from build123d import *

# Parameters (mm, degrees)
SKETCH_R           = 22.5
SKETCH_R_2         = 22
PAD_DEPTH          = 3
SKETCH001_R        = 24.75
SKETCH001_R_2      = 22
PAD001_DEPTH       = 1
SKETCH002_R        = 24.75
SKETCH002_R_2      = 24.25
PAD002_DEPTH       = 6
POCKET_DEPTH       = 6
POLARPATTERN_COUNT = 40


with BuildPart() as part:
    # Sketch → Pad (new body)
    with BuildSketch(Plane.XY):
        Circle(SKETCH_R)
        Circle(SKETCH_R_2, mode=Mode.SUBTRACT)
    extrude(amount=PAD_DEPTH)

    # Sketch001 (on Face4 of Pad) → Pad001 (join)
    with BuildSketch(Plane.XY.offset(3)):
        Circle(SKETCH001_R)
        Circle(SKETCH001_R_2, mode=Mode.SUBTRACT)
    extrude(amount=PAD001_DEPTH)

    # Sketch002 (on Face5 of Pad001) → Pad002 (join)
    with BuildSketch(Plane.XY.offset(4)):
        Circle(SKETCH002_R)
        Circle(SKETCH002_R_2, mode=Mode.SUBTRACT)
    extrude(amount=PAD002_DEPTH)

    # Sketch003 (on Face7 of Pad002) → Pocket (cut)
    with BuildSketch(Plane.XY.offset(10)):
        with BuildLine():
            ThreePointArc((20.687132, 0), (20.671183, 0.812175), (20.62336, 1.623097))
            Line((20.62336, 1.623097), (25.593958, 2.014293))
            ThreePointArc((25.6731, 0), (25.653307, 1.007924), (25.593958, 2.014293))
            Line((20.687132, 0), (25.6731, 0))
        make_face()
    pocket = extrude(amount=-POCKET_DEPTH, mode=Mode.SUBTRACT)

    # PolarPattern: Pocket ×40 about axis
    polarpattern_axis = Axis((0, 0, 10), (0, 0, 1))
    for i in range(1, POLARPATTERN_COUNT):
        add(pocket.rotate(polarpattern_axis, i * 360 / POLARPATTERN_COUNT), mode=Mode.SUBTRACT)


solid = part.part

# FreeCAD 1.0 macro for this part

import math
import FreeCAD as App
import Part
import Sketcher

V = App.Vector
Q = App.Units.Quantity

doc = App.newDocument("Part")
params = doc.addObject("Spreadsheet::Sheet", "Params")
for row, (alias, value) in enumerate([
    ("sketch1_diameter", "45 mm"),
    ("sketch1_diameter2", "44 mm"),
    ("pad1_length", "3 mm"),
    ("sketch2_diameter", "44 mm"),
    ("sketch2_diameter2", "49.5 mm"),
    ("pad2_length", "1 mm"),
    ("sketch3_diameter", "49.5 mm"),
    ("sketch3_diameter2", "48.5 mm"),
    ("pad3_length", "6 mm"),
    ("pocket1_length", "6 mm"),
], start=1):
    params.set(f"A{row}", alias)
    params.set(f"B{row}", "=" + value)
    params.setAlias(f"B{row}", alias)

body = doc.addObject("PartDesign::Body", "Body")

# Sketch on XY plane
sketch1 = body.newObject("Sketcher::SketchObject", "Sketch")
sketch1.AttachmentSupport = (doc.getObject("XY_Plane"), [""])
sketch1.MapMode = "FlatFace"
sketch1.addGeometry([
    Part.Circle(V(0, 0, 0), V(0, 0, 1), 22),
    Part.Circle(V(0, 0, 0), V(0, 0, 1), 22),
], False)
sketch1.addConstraint([
    Sketcher.Constraint("Coincident", 0, 3, -1, 1),
    Sketcher.Constraint("Coincident", 1, 3, -1, 1),
    Sketcher.Constraint("Diameter", 0, Q("45 mm")),
    Sketcher.Constraint("Diameter", 1, Q("44 mm")),
])
sketch1.setExpression("Constraints[2]", "Params.sketch1_diameter")
sketch1.setExpression("Constraints[3]", "Params.sketch1_diameter2")
pad1 = body.newObject("PartDesign::Pad", "Pad")
pad1.Profile = sketch1
pad1.setExpression("Length", "Params.pad1_length")

# Sketch on XY plane
sketch2 = body.newObject("Sketcher::SketchObject", "Sketch001")
sketch2.AttachmentSupport = (doc.getObject("XY_Plane"), [""])
sketch2.MapMode = "FlatFace"
sketch2.AttachmentOffset = App.Placement(V(0, 0, 3), App.Rotation())
sketch2.addGeometry([
    Part.Circle(V(0, 0, 0), V(0, 0, 1), 25),
    Part.Circle(V(0, 0, 0), V(0, 0, 1), 22),
], False)
sketch2.addConstraint([
    Sketcher.Constraint("Coincident", 0, 3, -1, 1),
    Sketcher.Constraint("Coincident", 1, 3, -1, 1),
    Sketcher.Constraint("Diameter", 1, Q("44 mm")),
    Sketcher.Constraint("Diameter", 0, Q("49.5 mm")),
])
sketch2.setExpression("Constraints[2]", "Params.sketch2_diameter")
sketch2.setExpression("Constraints[3]", "Params.sketch2_diameter2")
pad2 = body.newObject("PartDesign::Pad", "Pad001")
pad2.Profile = sketch2
pad2.setExpression("Length", "Params.pad2_length")

# Sketch on XY plane
sketch3 = body.newObject("Sketcher::SketchObject", "Sketch002")
sketch3.AttachmentSupport = (doc.getObject("XY_Plane"), [""])
sketch3.MapMode = "FlatFace"
sketch3.AttachmentOffset = App.Placement(V(0, 0, 4), App.Rotation())
sketch3.addGeometry([
    Part.Circle(V(0, 0, 0), V(0, 0, 1), 25),
    Part.Circle(V(0, 0, 0), V(0, 0, 1), 24),
], False)
sketch3.addConstraint([
    Sketcher.Constraint("Coincident", 0, 3, -1, 1),
    Sketcher.Constraint("Coincident", 1, 3, -1, 1),
    Sketcher.Constraint("Diameter", 0, Q("49.5 mm")),
    Sketcher.Constraint("Diameter", 1, Q("48.5 mm")),
])
sketch3.setExpression("Constraints[2]", "Params.sketch3_diameter")
sketch3.setExpression("Constraints[3]", "Params.sketch3_diameter2")
pad3 = body.newObject("PartDesign::Pad", "Pad002")
pad3.Profile = sketch3
pad3.setExpression("Length", "Params.pad3_length")

# Sketch on XY plane
sketch4 = body.newObject("Sketcher::SketchObject", "Sketch003")
sketch4.AttachmentSupport = (doc.getObject("XY_Plane"), [""])
sketch4.MapMode = "FlatFace"
sketch4.AttachmentOffset = App.Placement(V(0, 0, 10), App.Rotation())
sketch4.addGeometry([
    Part.ArcOfCircle(Part.Circle(V(0, 0, 0), V(0, 0, 1), 20.7), math.radians(0), math.radians(4.5)),
    Part.LineSegment(V(20.7, 0, 0), V(25.7, 0, 0)),
    Part.ArcOfCircle(Part.Circle(V(0, 0, 0), V(0, 0, 1), 25.7), math.radians(0), math.radians(4.5)),
    Part.LineSegment(V(25.6, 2, 0), V(20.6, 1.6, 0)),
], False)
sketch4.addConstraint([
    Sketcher.Constraint("Coincident", 0, 1, 1, 1),
    Sketcher.Constraint("Coincident", 1, 2, 2, 1),
    Sketcher.Constraint("Coincident", 2, 2, 3, 1),
    Sketcher.Constraint("Coincident", 3, 2, 0, 2),
    Sketcher.Constraint("Horizontal", 1),
    Sketcher.Constraint("PointOnObject", 0, 1, -1),
    Sketcher.Constraint("Horizontal", 0, 3, 2, 3),
    Sketcher.Constraint("Angle", 3, Q("-175.499983 deg")),
    Sketcher.Constraint("Radius", 0, Q("20.686854 mm")),
    Sketcher.Constraint("Radius", 2, Q("25.672903 mm")),
    Sketcher.Constraint("DistanceX", 1, 1, 1, 2, Q("4.985968 mm")),
    Sketcher.Constraint("DistanceX", -1, 1, 1, 2, Q("25.6731 mm")),
    Sketcher.Constraint("DistanceX", -1, 1, 2, 2, Q("25.593958 mm")),
    Sketcher.Constraint("DistanceY", -1, 1, 2, 2, Q("2.014293 mm")),
])
pocket1 = body.newObject("PartDesign::Pocket", "Pocket")
pocket1.Profile = sketch4
pocket1.setExpression("Length", "Params.pocket1_length")
doc.recompute()

polarpattern = body.newObject("PartDesign::PolarPattern", "PolarPattern")
polarpattern.Originals = [pocket1]
polarpattern.Axis = (doc.getObject("Z_Axis"), [""])
polarpattern.Angle = 360
polarpattern.Occurrences = 40
body.Tip = polarpattern

doc.recompute()
